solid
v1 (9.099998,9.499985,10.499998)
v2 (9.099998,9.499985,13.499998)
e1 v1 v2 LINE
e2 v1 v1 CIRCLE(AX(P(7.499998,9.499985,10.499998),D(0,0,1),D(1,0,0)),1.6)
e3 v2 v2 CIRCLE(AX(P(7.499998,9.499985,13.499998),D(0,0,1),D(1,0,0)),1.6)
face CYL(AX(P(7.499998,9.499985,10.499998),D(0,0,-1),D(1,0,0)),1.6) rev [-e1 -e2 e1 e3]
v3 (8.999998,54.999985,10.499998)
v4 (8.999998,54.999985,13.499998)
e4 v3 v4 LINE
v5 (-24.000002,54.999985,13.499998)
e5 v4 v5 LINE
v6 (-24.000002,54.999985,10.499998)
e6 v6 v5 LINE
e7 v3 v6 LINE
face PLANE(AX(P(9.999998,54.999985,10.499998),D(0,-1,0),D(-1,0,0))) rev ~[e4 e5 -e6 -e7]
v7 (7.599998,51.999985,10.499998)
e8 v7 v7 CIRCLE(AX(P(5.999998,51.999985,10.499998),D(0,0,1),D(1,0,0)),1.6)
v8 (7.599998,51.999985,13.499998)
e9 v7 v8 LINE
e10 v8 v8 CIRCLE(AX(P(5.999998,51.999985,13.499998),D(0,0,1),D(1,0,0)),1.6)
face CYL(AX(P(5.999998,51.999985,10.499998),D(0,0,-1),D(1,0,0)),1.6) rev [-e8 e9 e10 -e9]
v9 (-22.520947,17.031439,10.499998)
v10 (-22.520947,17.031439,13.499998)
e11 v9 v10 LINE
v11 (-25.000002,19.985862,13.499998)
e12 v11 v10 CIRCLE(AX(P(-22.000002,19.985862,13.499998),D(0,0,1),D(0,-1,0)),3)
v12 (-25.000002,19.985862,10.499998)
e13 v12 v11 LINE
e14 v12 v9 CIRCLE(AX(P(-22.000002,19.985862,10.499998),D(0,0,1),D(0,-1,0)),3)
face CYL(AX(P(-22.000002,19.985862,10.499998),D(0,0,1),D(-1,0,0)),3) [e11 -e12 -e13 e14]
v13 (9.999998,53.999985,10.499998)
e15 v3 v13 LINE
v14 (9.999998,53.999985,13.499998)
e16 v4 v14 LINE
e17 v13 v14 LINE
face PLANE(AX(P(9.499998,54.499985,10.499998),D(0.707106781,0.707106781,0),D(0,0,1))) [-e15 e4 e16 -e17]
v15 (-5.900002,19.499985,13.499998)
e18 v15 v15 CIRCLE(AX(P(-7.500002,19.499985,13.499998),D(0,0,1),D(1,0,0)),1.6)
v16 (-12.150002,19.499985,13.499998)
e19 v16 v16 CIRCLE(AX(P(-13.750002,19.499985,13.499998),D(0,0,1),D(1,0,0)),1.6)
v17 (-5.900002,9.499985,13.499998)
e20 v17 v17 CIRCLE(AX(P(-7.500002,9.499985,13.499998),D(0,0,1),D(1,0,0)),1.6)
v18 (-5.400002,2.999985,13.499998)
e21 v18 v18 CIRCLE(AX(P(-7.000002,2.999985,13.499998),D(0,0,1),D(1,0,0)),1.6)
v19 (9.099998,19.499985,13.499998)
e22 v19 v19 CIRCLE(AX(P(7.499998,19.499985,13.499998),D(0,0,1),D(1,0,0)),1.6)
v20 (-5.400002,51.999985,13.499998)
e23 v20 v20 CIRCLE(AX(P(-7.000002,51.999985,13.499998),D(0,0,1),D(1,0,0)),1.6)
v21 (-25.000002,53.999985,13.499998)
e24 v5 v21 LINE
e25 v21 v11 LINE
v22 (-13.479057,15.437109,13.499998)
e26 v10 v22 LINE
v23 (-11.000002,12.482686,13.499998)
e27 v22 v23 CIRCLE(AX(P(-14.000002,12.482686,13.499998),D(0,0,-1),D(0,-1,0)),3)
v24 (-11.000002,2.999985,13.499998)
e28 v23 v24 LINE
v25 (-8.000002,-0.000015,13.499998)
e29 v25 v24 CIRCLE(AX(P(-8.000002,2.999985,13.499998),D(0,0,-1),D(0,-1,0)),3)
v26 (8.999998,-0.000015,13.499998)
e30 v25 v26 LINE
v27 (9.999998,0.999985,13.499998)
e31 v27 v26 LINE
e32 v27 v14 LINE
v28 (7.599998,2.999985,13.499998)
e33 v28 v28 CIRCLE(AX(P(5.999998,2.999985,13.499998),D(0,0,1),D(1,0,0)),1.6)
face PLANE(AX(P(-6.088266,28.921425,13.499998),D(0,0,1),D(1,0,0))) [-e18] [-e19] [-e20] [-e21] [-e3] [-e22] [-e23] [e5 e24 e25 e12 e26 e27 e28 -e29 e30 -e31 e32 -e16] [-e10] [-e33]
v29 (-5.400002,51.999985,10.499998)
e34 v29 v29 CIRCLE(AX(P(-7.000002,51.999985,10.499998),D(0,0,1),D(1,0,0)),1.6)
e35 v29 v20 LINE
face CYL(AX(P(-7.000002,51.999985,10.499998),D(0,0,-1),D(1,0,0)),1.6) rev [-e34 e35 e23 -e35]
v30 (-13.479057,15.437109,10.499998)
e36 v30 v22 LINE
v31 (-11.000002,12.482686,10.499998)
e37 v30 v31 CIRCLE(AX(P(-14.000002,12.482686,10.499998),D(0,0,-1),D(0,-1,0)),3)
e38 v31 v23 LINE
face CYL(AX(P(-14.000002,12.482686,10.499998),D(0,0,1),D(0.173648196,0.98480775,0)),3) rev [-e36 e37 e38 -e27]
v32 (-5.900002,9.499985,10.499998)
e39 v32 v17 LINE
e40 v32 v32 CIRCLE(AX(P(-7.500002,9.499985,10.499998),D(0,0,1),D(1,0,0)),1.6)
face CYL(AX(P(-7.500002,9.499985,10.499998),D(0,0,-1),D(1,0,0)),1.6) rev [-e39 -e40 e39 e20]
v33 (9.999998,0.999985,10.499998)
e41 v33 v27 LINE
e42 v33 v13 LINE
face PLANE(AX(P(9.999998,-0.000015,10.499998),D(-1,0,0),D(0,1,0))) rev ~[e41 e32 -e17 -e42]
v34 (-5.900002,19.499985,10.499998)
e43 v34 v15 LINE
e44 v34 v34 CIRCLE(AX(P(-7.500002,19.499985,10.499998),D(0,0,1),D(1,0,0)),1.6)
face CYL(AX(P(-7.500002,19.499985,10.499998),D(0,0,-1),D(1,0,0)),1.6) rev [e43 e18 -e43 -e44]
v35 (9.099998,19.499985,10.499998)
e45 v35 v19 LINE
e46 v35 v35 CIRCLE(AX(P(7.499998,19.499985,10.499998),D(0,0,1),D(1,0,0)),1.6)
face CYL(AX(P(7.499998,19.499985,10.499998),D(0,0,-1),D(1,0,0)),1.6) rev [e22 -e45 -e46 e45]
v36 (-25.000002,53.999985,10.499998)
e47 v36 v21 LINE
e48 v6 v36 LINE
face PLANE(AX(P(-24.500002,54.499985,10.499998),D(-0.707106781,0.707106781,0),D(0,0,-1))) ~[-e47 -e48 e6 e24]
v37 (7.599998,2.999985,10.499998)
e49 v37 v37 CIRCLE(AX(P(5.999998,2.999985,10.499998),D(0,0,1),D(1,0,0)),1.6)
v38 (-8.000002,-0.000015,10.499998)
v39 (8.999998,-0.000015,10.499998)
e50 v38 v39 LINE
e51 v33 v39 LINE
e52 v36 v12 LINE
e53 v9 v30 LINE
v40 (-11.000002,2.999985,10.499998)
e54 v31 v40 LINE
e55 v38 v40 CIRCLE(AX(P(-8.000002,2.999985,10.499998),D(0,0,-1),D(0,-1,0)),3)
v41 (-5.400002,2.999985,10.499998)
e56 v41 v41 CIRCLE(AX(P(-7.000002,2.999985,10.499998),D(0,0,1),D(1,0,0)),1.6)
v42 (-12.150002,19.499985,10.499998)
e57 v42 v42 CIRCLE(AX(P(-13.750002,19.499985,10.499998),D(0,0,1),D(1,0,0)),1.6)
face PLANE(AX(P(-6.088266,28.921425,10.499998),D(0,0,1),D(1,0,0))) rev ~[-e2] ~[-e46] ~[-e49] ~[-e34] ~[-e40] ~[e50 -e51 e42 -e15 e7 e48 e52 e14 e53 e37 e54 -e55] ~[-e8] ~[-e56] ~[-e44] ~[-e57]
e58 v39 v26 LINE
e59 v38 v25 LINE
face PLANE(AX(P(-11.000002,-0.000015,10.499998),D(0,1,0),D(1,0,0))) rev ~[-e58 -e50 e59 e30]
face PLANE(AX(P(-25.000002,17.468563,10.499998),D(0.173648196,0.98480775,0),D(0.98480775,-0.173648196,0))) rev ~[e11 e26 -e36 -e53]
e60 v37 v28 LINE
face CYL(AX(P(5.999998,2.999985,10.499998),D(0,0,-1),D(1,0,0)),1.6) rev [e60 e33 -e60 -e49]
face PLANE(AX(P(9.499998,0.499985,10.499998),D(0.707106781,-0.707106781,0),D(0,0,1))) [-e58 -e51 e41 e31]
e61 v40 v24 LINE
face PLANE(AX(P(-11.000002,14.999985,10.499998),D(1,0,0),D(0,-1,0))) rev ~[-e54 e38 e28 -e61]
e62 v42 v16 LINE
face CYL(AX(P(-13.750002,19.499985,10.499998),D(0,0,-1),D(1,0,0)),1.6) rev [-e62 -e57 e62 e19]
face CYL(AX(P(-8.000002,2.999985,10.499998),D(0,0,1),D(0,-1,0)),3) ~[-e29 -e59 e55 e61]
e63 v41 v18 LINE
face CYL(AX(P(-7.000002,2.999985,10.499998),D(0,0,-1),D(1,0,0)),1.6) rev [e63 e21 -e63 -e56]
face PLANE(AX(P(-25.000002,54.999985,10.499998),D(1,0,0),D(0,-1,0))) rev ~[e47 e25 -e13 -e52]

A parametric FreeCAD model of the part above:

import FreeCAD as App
import Part
import Sketcher

V = App.Vector
Q = App.Units.Quantity


def edges_at(feature, points):
    """Names of the edges that pass closest to the given points."""
    edges = feature.Shape.Edges
    near = lambda p: min(range(len(edges)), key=lambda i: edges[i].distToShape(Part.Vertex(*p))[0])
    return sorted({f"Edge{near(p) + 1}" for p in points})

doc = App.newDocument("Part")
body = doc.addObject("PartDesign::Body", "Body")

sketch1 = body.newObject("Sketcher::SketchObject", "Sketch")
sketch1.AttachmentSupport = (doc.getObject("XY_Plane"), [""])
sketch1.MapMode = "FlatFace"
sketch1.addGeometry(Part.LineSegment(V(10, 55, 0), V(-25, 55, 0)), False)
sketch1.addGeometry(Part.LineSegment(V(-25, 55, 0), V(-25, 17.5, 0)), False)
sketch1.addGeometry(Part.LineSegment(V(-25, 17.5, 0), V(-11, 15, 0)), False)
sketch1.addGeometry(Part.LineSegment(V(-11, 15, 0), V(-11, 0, 0)), False)
sketch1.addGeometry(Part.LineSegment(V(-11, 0, 0), V(10, 0, 0)), False)
sketch1.addGeometry(Part.LineSegment(V(10, 0, 0), V(10, 55, 0)), False)
sketch1.addGeometry(Part.Circle(V(-7, 3, 0), V(0, 0, 1), 1.6), False)
sketch1.addGeometry(Part.Circle(V(-7.5, 9.5, 0), V(0, 0, 1), 1.6), False)
sketch1.addGeometry(Part.Circle(V(-13.8, 19.5, 0), V(0, 0, 1), 1.6), False)
sketch1.addGeometry(Part.Circle(V(-7.5, 19.5, 0), V(0, 0, 1), 1.6), False)
sketch1.addGeometry(Part.Circle(V(6, 3, 0), V(0, 0, 1), 1.6), False)
sketch1.addGeometry(Part.Circle(V(7.5, 9.5, 0), V(0, 0, 1), 1.6), False)
sketch1.addGeometry(Part.Circle(V(7.5, 19.5, 0), V(0, 0, 1), 1.6), False)
sketch1.addGeometry(Part.Circle(V(-7, 52, 0), V(0, 0, 1), 1.6), False)
sketch1.addGeometry(Part.Circle(V(6, 52, 0), V(0, 0, 1), 1.6), False)
sketch1.addConstraint(Sketcher.Constraint("Coincident", 0, 2, 1, 1))
sketch1.addConstraint(Sketcher.Constraint("Coincident", 1, 2, 2, 1))
sketch1.addConstraint(Sketcher.Constraint("Coincident", 2, 2, 3, 1))
sketch1.addConstraint(Sketcher.Constraint("Coincident", 3, 2, 4, 1))
sketch1.addConstraint(Sketcher.Constraint("Coincident", 4, 2, 5, 1))
sketch1.addConstraint(Sketcher.Constraint("Coincident", 5, 2, 0, 1))
sketch1.addConstraint(Sketcher.Constraint("Horizontal", 0))
sketch1.addConstraint(Sketcher.Constraint("Vertical", 1))
sketch1.addConstraint(Sketcher.Constraint("Vertical", 3))
sketch1.addConstraint(Sketcher.Constraint("Horizontal", 4))
sketch1.addConstraint(Sketcher.Constraint("Vertical", 5))
sketch1.addConstraint(Sketcher.Constraint("Equal", 6, 7))
sketch1.addConstraint(Sketcher.Constraint("Equal", 7, 8))
sketch1.addConstraint(Sketcher.Constraint("Equal", 8, 9))
sketch1.addConstraint(Sketcher.Constraint("Equal", 9, 10))
sketch1.addConstraint(Sketcher.Constraint("Equal", 10, 11))
sketch1.addConstraint(Sketcher.Constraint("Equal", 11, 12))
sketch1.addConstraint(Sketcher.Constraint("Equal", 12, 13))
sketch1.addConstraint(Sketcher.Constraint("Equal", 13, 14))
sketch1.addConstraint(Sketcher.Constraint("Symmetric", 7, 3, 11, 3, -2))
sketch1.addConstraint(Sketcher.Constraint("Symmetric", 9, 3, 12, 3, -2))
sketch1.addConstraint(Sketcher.Constraint("PointOnObject", 3, 2, -1))
sketch1.addConstraint(Sketcher.Constraint("Horizontal", 8, 3, 9, 3))
sketch1.addConstraint(Sketcher.Constraint("Horizontal", 6, 3, 10, 3))
sketch1.addConstraint(Sketcher.Constraint("Horizontal", 13, 3, 14, 3))
sketch1.addConstraint(Sketcher.Constraint("Vertical", 7, 3, 9, 3))
sketch1.addConstraint(Sketcher.Constraint("Vertical", 6, 3, 13, 3))
sketch1.addConstraint(Sketcher.Constraint("Vertical", 10, 3, 14, 3))
sketch1.addConstraint(Sketcher.Constraint("Diameter", 6, 3.2))
sketch1.addConstraint(Sketcher.Constraint("DistanceX", 0, 2, 0, 1, 35.0))
sketch1.addConstraint(Sketcher.Constraint("DistanceX", 4, 1, 4, 2, 21.0))
sketch1.addConstraint(Sketcher.Constraint("DistanceY", 3, 2, 3, 1, 15.0))
sketch1.addConstraint(Sketcher.Constraint("DistanceY", 5, 1, 5, 2, 55.0))
sketch1.addConstraint(Sketcher.Constraint("Angle", 2, Q("-10.000001 deg")))
sketch1.addConstraint(Sketcher.Constraint("DistanceX", 6, 3, -1, 1, 7.0))
sketch1.addConstraint(Sketcher.Constraint("DistanceY", -1, 1, 6, 3, 3.0))
sketch1.addConstraint(Sketcher.Constraint("DistanceX", -1, 1, 10, 3, 6.0))
sketch1.addConstraint(Sketcher.Constraint("DistanceY", -1, 1, 13, 3, 52.0))
sketch1.addConstraint(Sketcher.Constraint("DistanceX", 0, 2, -1, 1, 25.0))
sketch1.addConstraint(Sketcher.Constraint("DistanceY", 7, 3, 8, 3, 10.0))
sketch1.addConstraint(Sketcher.Constraint("DistanceX", 7, 3, 11, 3, 15.0))
sketch1.addConstraint(Sketcher.Constraint("DistanceY", -1, 1, 7, 3, 9.5))
sketch1.addConstraint(Sketcher.Constraint("DistanceX", 8, 3, -1, 1, 13.75))
pad1 = body.newObject("PartDesign::Pad", "Pad")
pad1.Profile = sketch1
pad1.Length = 3
doc.recompute()

chamfer = body.newObject("PartDesign::Chamfer", "Chamfer")
chamfer.Base = (pad1, edges_at(pad1, [(10, 0, 1.5), (10, 55, 1.5), (-25, 55, 1.5)]))
chamfer.Size = 1
doc.recompute()

fillet = body.newObject("PartDesign::Fillet", "Fillet")
fillet.Base = (chamfer, edges_at(chamfer, [(-25, 17.469, 1.5), (-11, 15, 1.5), (-11, 0, 1.5)]))
fillet.Radius = 3
body2 = doc.addObject("PartDesign::Body", "Body001")
doc.recompute()

body.Placement = App.Placement(V(-0.000002, -0.000015, 10.499998), App.Rotation(V(0, 0, 1), 0))
boolean = body2.newObject("PartDesign::Boolean", "Boolean")
boolean.Type = "Fuse"
boolean.addObjects([body])

doc.recompute()
